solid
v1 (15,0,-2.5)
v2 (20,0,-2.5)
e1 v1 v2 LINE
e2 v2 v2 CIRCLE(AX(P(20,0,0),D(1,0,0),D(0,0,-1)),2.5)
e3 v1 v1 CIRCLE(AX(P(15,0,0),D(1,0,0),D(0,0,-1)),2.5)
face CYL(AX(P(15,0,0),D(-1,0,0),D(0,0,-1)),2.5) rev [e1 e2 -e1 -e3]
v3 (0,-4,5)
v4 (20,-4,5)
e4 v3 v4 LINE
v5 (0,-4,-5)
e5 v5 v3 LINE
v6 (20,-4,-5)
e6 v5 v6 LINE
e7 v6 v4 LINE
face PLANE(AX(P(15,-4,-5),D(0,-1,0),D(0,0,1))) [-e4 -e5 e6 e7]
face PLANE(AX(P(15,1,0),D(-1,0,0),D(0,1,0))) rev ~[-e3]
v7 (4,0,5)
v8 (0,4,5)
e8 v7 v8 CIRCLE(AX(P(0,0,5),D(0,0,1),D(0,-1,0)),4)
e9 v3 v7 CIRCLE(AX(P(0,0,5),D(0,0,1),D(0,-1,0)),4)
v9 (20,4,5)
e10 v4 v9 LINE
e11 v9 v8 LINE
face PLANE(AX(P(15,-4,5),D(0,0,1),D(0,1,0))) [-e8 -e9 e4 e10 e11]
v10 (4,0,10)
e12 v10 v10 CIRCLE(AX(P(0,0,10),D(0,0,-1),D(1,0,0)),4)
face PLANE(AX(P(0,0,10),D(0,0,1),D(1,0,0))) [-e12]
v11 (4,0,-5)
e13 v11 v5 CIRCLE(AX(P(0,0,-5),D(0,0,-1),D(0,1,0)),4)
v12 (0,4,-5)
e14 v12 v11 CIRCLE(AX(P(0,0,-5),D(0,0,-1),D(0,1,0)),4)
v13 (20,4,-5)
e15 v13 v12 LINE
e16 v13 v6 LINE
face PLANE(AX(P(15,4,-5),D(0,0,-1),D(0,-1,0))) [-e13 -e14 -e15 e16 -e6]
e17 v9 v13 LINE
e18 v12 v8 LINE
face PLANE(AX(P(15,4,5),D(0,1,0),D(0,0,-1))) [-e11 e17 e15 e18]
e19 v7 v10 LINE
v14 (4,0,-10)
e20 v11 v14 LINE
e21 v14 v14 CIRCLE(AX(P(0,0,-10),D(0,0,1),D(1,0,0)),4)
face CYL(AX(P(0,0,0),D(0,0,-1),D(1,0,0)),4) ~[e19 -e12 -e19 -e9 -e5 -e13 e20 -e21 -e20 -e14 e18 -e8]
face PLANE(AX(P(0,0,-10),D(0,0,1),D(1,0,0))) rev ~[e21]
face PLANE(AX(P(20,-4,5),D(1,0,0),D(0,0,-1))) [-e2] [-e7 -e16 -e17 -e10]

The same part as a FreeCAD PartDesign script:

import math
import FreeCAD as App
import Part
import Sketcher

V = App.Vector
Q = App.Units.Quantity


def add_polygon(sketch, points):
    """Adds a closed chain of lines whose ends are joined by coincident constraints."""
    first, n = sketch.GeometryCount, len(points)
    for a, b in zip(points, points[1:] + points[:1]):
        sketch.addGeometry(Part.LineSegment(App.Vector(*a, 0), App.Vector(*b, 0)), False)
    for i in range(n):
        sketch.addConstraint(Sketcher.Constraint("Coincident", first + i, 2, first + (i + 1) % n, 1))

doc = App.newDocument("Part")
body = doc.addObject("PartDesign::Body", "Body")

# Sketch on XY plane
sketch1 = body.newObject("Sketcher::SketchObject", "Sketch")
sketch1.AttachmentSupport = (doc.getObject("XY_Plane"), [""])
sketch1.MapMode = "FlatFace"
sketch1.addGeometry(Part.ArcOfCircle(Part.Circle(V(0, 0, 0), V(0, 0, 1), 4), math.radians(-90), math.radians(90)), False)
sketch1.addGeometry(Part.LineSegment(V(0, -4, 0), V(15, -4, 0)), False)
sketch1.addGeometry(Part.LineSegment(V(15, -4, 0), V(15, 4, 0)), False)
sketch1.addGeometry(Part.LineSegment(V(15, 4, 0), V(0, 4, 0)), False)
sketch1.addConstraint(Sketcher.Constraint("Tangent", 0, 1, 1, 1))
sketch1.addConstraint(Sketcher.Constraint("Coincident", 1, 2, 2, 1))
sketch1.addConstraint(Sketcher.Constraint("Coincident", 2, 2, 3, 1))
sketch1.addConstraint(Sketcher.Constraint("Tangent", 3, 2, 0, 2))
sketch1.addConstraint(Sketcher.Constraint("Horizontal", 1))
sketch1.addConstraint(Sketcher.Constraint("Vertical", 2))
sketch1.addConstraint(Sketcher.Constraint("Horizontal", 3))
sketch1.addConstraint(Sketcher.Constraint("Coincident", 0, 3, -1, 1))
sketch1.addConstraint(Sketcher.Constraint("Radius", 0, Q("4 mm")))
sketch1.addConstraint(Sketcher.Constraint("DistanceX", 1, 1, 1, 2, Q("15 mm")))
pad1 = body.newObject("PartDesign::Pad", "Pad")
pad1.Profile = sketch1
pad1.Length = 10
pad1.Midplane = True

# Sketch on XY plane
sketch2 = body.newObject("Sketcher::SketchObject", "Sketch001")
sketch2.AttachmentSupport = (doc.getObject("XY_Plane"), [""])
sketch2.MapMode = "FlatFace"
sketch2.addGeometry(Part.Circle(V(0, 0, 0), V(0, 0, 1), 4), False)
sketch2.addConstraint(Sketcher.Constraint("Coincident", 0, 3, -1, 1))
sketch2.addConstraint(Sketcher.Constraint("Diameter", 0, Q("8 mm")))
pad2 = body.newObject("PartDesign::Pad", "Pad001")
pad2.Profile = sketch2
pad2.Length = 20
pad2.Midplane = True

# Sketch on YZ plane
sketch3 = body.newObject("Sketcher::SketchObject", "Sketch002")
sketch3.AttachmentSupport = (doc.getObject("YZ_Plane"), [""])
sketch3.MapMode = "FlatFace"
sketch3.AttachmentOffset = App.Placement(V(0, 0, 15), App.Rotation())
add_polygon(sketch3, [(4, 5), (-4, 5), (-4, -5), (4, -5)])  # lines 0-3
sketch3.addGeometry(Part.Circle(V(0, 0, 0), V(0, 0, 1), 2.5), False)  # 4
sketch3.addConstraint(Sketcher.Constraint("Horizontal", 0))
sketch3.addConstraint(Sketcher.Constraint("Vertical", 1))
sketch3.addConstraint(Sketcher.Constraint("Horizontal", 2))
sketch3.addConstraint(Sketcher.Constraint("Vertical", 3))
sketch3.addConstraint(Sketcher.Constraint("Coincident", 4, 3, -1, 1))
sketch3.addConstraint(Sketcher.Constraint("Symmetric", 0, 2, 2, 2, -1, 1))
sketch3.addConstraint(Sketcher.Constraint("Diameter", 4, Q("5 mm")))
sketch3.addConstraint(Sketcher.Constraint("DistanceY", -1, 1, 0, 2, Q("5 mm")))
sketch3.addConstraint(Sketcher.Constraint("DistanceX", 0, 2, 0, 1, Q("8 mm")))
pad3 = body.newObject("PartDesign::Pad", "Pad002")
pad3.Profile = sketch3
pad3.Length = 5

doc.recompute()
